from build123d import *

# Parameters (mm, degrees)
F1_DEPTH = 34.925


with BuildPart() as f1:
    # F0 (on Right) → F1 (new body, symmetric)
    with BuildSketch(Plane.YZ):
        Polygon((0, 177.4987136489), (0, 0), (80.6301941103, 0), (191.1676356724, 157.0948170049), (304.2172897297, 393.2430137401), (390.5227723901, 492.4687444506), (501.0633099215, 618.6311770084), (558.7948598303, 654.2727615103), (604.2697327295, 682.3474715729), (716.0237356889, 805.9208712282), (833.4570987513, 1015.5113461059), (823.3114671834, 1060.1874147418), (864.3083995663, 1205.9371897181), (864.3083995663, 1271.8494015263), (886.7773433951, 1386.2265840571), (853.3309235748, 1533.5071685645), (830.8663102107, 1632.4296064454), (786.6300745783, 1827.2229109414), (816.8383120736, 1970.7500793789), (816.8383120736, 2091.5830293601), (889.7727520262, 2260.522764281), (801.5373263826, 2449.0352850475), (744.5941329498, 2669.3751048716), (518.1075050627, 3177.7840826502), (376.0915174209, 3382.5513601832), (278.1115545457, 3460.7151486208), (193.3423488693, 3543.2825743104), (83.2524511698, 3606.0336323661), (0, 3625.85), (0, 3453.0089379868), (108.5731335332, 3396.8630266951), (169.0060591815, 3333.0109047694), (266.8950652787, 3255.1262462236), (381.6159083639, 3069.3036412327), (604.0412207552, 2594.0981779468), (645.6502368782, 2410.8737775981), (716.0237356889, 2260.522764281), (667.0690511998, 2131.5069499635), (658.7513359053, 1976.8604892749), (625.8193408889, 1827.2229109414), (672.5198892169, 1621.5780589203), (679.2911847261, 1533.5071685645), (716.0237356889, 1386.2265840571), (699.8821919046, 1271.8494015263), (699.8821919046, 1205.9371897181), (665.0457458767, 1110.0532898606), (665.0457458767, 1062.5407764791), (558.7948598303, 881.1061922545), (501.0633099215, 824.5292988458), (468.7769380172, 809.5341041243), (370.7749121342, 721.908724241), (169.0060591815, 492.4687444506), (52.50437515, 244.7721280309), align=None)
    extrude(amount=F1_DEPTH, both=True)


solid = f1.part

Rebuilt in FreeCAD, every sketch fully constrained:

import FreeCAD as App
import Part
import Sketcher
from FreeCAD import Vector
Q = App.Units.Quantity

doc = App.newDocument("Part")
body = doc.addObject("PartDesign::Body", "Body")

sketch1 = body.newObject("Sketcher::SketchObject", "Sketch")
sketch1.AttachmentSupport = (doc.getObject("YZ_Plane"), [""])
sketch1.MapMode = "FlatFace"
sketch1.addGeometry([
    Part.LineSegment(Vector(0, 177, 0), Vector(0, 0, 0)),
    Part.LineSegment(Vector(0, 0, 0), Vector(81, 0, 0)),
    Part.LineSegment(Vector(81, 0, 0), Vector(191, 157, 0)),
    Part.LineSegment(Vector(191, 157, 0), Vector(304, 393, 0)),
    Part.LineSegment(Vector(304, 393, 0), Vector(391, 492, 0)),
    Part.LineSegment(Vector(391, 492, 0), Vector(501, 619, 0)),
    Part.LineSegment(Vector(501, 619, 0), Vector(559, 654, 0)),
    Part.LineSegment(Vector(559, 654, 0), Vector(604, 682, 0)),
    Part.LineSegment(Vector(604, 682, 0), Vector(716, 806, 0)),
    Part.LineSegment(Vector(716, 806, 0), Vector(833, 1016, 0)),
    Part.LineSegment(Vector(833, 1016, 0), Vector(823, 1060, 0)),
    Part.LineSegment(Vector(823, 1060, 0), Vector(864, 1206, 0)),
    Part.LineSegment(Vector(864, 1206, 0), Vector(864, 1272, 0)),
    Part.LineSegment(Vector(864, 1272, 0), Vector(887, 1386, 0)),
    Part.LineSegment(Vector(887, 1386, 0), Vector(787, 1827, 0)),
    Part.LineSegment(Vector(787, 1827, 0), Vector(817, 1971, 0)),
    Part.LineSegment(Vector(817, 1971, 0), Vector(817, 2092, 0)),
    Part.LineSegment(Vector(817, 2092, 0), Vector(890, 2261, 0)),
    Part.LineSegment(Vector(890, 2261, 0), Vector(802, 2449, 0)),
    Part.LineSegment(Vector(802, 2449, 0), Vector(745, 2669, 0)),
    Part.LineSegment(Vector(745, 2669, 0), Vector(518, 3178, 0)),
    Part.LineSegment(Vector(518, 3178, 0), Vector(376, 3383, 0)),
    Part.LineSegment(Vector(376, 3383, 0), Vector(278, 3461, 0)),
    Part.LineSegment(Vector(278, 3461, 0), Vector(193, 3543, 0)),
    Part.LineSegment(Vector(193, 3543, 0), Vector(83, 3606, 0)),
    Part.LineSegment(Vector(83, 3606, 0), Vector(0, 3626, 0)),
    Part.LineSegment(Vector(0, 3626, 0), Vector(0, 3453, 0)),
    Part.LineSegment(Vector(0, 3453, 0), Vector(109, 3397, 0)),
    Part.LineSegment(Vector(109, 3397, 0), Vector(169, 3333, 0)),
    Part.LineSegment(Vector(169, 3333, 0), Vector(267, 3255, 0)),
    Part.LineSegment(Vector(267, 3255, 0), Vector(382, 3069, 0)),
    Part.LineSegment(Vector(382, 3069, 0), Vector(604, 2594, 0)),
    Part.LineSegment(Vector(604, 2594, 0), Vector(646, 2411, 0)),
    Part.LineSegment(Vector(646, 2411, 0), Vector(716, 2261, 0)),
    Part.LineSegment(Vector(716, 2261, 0), Vector(667, 2132, 0)),
    Part.LineSegment(Vector(667, 2132, 0), Vector(659, 1977, 0)),
    Part.LineSegment(Vector(659, 1977, 0), Vector(626, 1827, 0)),
    Part.LineSegment(Vector(626, 1827, 0), Vector(673, 1622, 0)),
    Part.LineSegment(Vector(673, 1622, 0), Vector(679, 1534, 0)),
    Part.LineSegment(Vector(679, 1534, 0), Vector(716, 1386, 0)),
    Part.LineSegment(Vector(716, 1386, 0), Vector(700, 1272, 0)),
    Part.LineSegment(Vector(700, 1272, 0), Vector(700, 1206, 0)),
    Part.LineSegment(Vector(700, 1206, 0), Vector(665, 1110, 0)),
    Part.LineSegment(Vector(665, 1110, 0), Vector(665, 1063, 0)),
    Part.LineSegment(Vector(665, 1063, 0), Vector(559, 881, 0)),
    Part.LineSegment(Vector(559, 881, 0), Vector(501, 825, 0)),
    Part.LineSegment(Vector(501, 825, 0), Vector(469, 810, 0)),
    Part.LineSegment(Vector(469, 810, 0), Vector(371, 722, 0)),
    Part.LineSegment(Vector(371, 722, 0), Vector(169, 492, 0)),
    Part.LineSegment(Vector(169, 492, 0), Vector(53, 245, 0)),
    Part.LineSegment(Vector(53, 245, 0), Vector(0, 177, 0)),
], False)
sketch1.addConstraint([
    Sketcher.Constraint("Coincident", 0, 2, 1, 1),
    Sketcher.Constraint("Coincident", 1, 2, 2, 1),
    Sketcher.Constraint("Coincident", 2, 2, 3, 1),
    Sketcher.Constraint("Coincident", 3, 2, 4, 1),
    Sketcher.Constraint("Coincident", 4, 2, 5, 1),
    Sketcher.Constraint("Coincident", 5, 2, 6, 1),
    Sketcher.Constraint("Coincident", 6, 2, 7, 1),
    Sketcher.Constraint("Coincident", 7, 2, 8, 1),
    Sketcher.Constraint("Coincident", 8, 2, 9, 1),
    Sketcher.Constraint("Coincident", 9, 2, 10, 1),
    Sketcher.Constraint("Coincident", 10, 2, 11, 1),
    Sketcher.Constraint("Coincident", 11, 2, 12, 1),
    Sketcher.Constraint("Coincident", 12, 2, 13, 1),
    Sketcher.Constraint("Coincident", 13, 2, 14, 1),
    Sketcher.Constraint("Coincident", 14, 2, 15, 1),
    Sketcher.Constraint("Coincident", 15, 2, 16, 1),
    Sketcher.Constraint("Coincident", 16, 2, 17, 1),
    Sketcher.Constraint("Coincident", 17, 2, 18, 1),
    Sketcher.Constraint("Coincident", 18, 2, 19, 1),
    Sketcher.Constraint("Coincident", 19, 2, 20, 1),
    Sketcher.Constraint("Coincident", 20, 2, 21, 1),
    Sketcher.Constraint("Coincident", 21, 2, 22, 1),
    Sketcher.Constraint("Coincident", 22, 2, 23, 1),
    Sketcher.Constraint("Coincident", 23, 2, 24, 1),
    Sketcher.Constraint("Coincident", 24, 2, 25, 1),
    Sketcher.Constraint("Coincident", 25, 2, 26, 1),
    Sketcher.Constraint("Coincident", 26, 2, 27, 1),
    Sketcher.Constraint("Coincident", 27, 2, 28, 1),
    Sketcher.Constraint("Coincident", 28, 2, 29, 1),
    Sketcher.Constraint("Coincident", 29, 2, 30, 1),
    Sketcher.Constraint("Coincident", 30, 2, 31, 1),
    Sketcher.Constraint("Coincident", 31, 2, 32, 1),
    Sketcher.Constraint("Coincident", 32, 2, 33, 1),
    Sketcher.Constraint("Coincident", 33, 2, 34, 1),
    Sketcher.Constraint("Coincident", 34, 2, 35, 1),
    Sketcher.Constraint("Coincident", 35, 2, 36, 1),
    Sketcher.Constraint("Coincident", 36, 2, 37, 1),
    Sketcher.Constraint("Coincident", 37, 2, 38, 1),
    Sketcher.Constraint("Coincident", 38, 2, 39, 1),
    Sketcher.Constraint("Coincident", 39, 2, 40, 1),
    Sketcher.Constraint("Coincident", 40, 2, 41, 1),
    Sketcher.Constraint("Coincident", 41, 2, 42, 1),
    Sketcher.Constraint("Coincident", 42, 2, 43, 1),
    Sketcher.Constraint("Coincident", 43, 2, 44, 1),
    Sketcher.Constraint("Coincident", 44, 2, 45, 1),
    Sketcher.Constraint("Coincident", 45, 2, 46, 1),
    Sketcher.Constraint("Coincident", 46, 2, 47, 1),
    Sketcher.Constraint("Coincident", 47, 2, 48, 1),
    Sketcher.Constraint("Coincident", 48, 2, 49, 1),
    Sketcher.Constraint("Coincident", 49, 2, 50, 1),
    Sketcher.Constraint("Coincident", 50, 2, 0, 1),
    Sketcher.Constraint("Vertical", 0),
    Sketcher.Constraint("Horizontal", 1),
    Sketcher.Constraint("Vertical", 12),
    Sketcher.Constraint("Vertical", 16),
    Sketcher.Constraint("Vertical", 26),
    Sketcher.Constraint("Vertical", 41),
    Sketcher.Constraint("Vertical", 43),
    Sketcher.Constraint("Coincident", 0, 2, -1, 1),
    Sketcher.Constraint("PointOnObject", 25, 2, -2),
    Sketcher.Constraint("Parallel", 6, 7),
    Sketcher.Constraint("Parallel", 10, 14),
    Sketcher.Constraint("Perpendicular", 7, 30),
    Sketcher.Constraint("Parallel", 18, 31),
    Sketcher.Constraint("Parallel", 14, 32),
    Sketcher.Constraint("Parallel", 31, 33),
    Sketcher.Constraint("Parallel", 32, 37),
    Sketcher.Constraint("Horizontal", 17, 2, 33, 2),
    Sketcher.Constraint("Horizontal", 14, 2, 36, 2),
    Sketcher.Constraint("Horizontal", 13, 2, 39, 2),
    Sketcher.Constraint("Horizontal", 12, 2, 40, 2),
    Sketcher.Constraint("Horizontal", 11, 2, 41, 2),
    Sketcher.Constraint("Horizontal", 4, 2, 48, 2),
    Sketcher.Constraint("Vertical", 8, 2, 33, 2),
    Sketcher.Constraint("Vertical", 33, 2, 39, 2),
    Sketcher.Constraint("Vertical", 6, 2, 44, 2),
    Sketcher.Constraint("Vertical", 5, 2, 45, 2),
    Sketcher.Constraint("Vertical", 28, 2, 48, 2),
    Sketcher.Constraint("DistanceY", -1, 1, 25, 2, Q("142.75 in")),
    Sketcher.Constraint("Distance", 19, Q("8.9597999 in")),
    Sketcher.Constraint("DistanceY", 22, 2, 24, 2, Q("5.7212001 in")),
    Sketcher.Constraint("Distance", 45, Q("80.832399 mm")),
    Sketcher.Constraint("DistanceY", 12, 1, 12, 2, Q("65.912212 mm")),
    Sketcher.Constraint("DistanceY", 16, 1, 16, 2, Q("120.83295 mm")),
    Sketcher.Constraint("DistanceX", -1, 1, 9, 2, Q("833.457099 mm")),
    Sketcher.Constraint("DistanceX", -1, 1, 11, 2, Q("864.3084 mm")),
    Sketcher.Constraint("DistanceY", -1, 1, 12, 2, Q("1271.849402 mm")),
    Sketcher.Constraint("DistanceY", -1, 1, 45, 2, Q("824.529299 mm")),
    Sketcher.Constraint("DistanceY", 7, 2, 8, 2, Q("123.5734 mm")),
    Sketcher.Constraint("DistanceY", 4, 2, 9, 2, Q("523.042602 mm")),
    Sketcher.Constraint("DistanceY", 13, 2, 18, 2, Q("1062.808701 mm")),
    Sketcher.Constraint("DistanceY", 32, 2, 31, 2, Q("183.2244 mm")),
    Sketcher.Constraint("DistanceX", 32, 2, 33, 2, Q("70.373499 mm")),
    Sketcher.Constraint("DistanceX", 34, 2, 17, 2, Q("222.703701 mm")),
    Sketcher.Constraint("DistanceX", 35, 2, 33, 2, Q("57.2724 mm")),
    Sketcher.Constraint("DistanceY", 42, 2, 41, 2, Q("95.8839 mm")),
    Sketcher.Constraint("Distance", 2, Q("192.086719 mm")),
    Sketcher.Constraint("Distance", 8, Q("166.611351 mm")),
    Sketcher.Constraint("Distance", 10, Q("45.813589 mm")),
    Sketcher.Constraint("Distance", 13, Q("116.563259 mm")),
    Sketcher.Constraint("Distance", 17, Q("184.01105 mm")),
    Sketcher.Constraint("Distance", 21, Q("249.195062 mm")),
    Sketcher.Constraint("Distance", 23, Q("118.335109 mm")),
    Sketcher.Constraint("Distance", 25, Q("85.57838 mm")),
    Sketcher.Constraint("Distance", 27, Q("122.231292 mm")),
    Sketcher.Constraint("Distance", 28, Q("87.916051 mm")),
    Sketcher.Constraint("Distance", 30, Q("218.382491 mm")),
    Sketcher.Constraint("Distance", 32, Q("187.889572 mm")),
    Sketcher.Constraint("Distance", 33, Q("166.005592 mm")),
    Sketcher.Constraint("Distance", 36, Q("153.21854 mm")),
    Sketcher.Constraint("Distance", 37, Q("210.880882 mm")),
    Sketcher.Constraint("Distance", 38, Q("88.330811 mm")),
    Sketcher.Constraint("Distance", 39, Q("151.79213 mm")),
    Sketcher.Constraint("Distance", 40, Q("115.510559 mm")),
    Sketcher.Constraint("Distance", 47, Q("131.463319 mm")),
    Sketcher.Constraint("Distance", 49, Q("273.726608 mm")),
    Sketcher.Constraint("DistanceX", 1, 1, 1, 2, Q("80.630194 mm")),
    Sketcher.Constraint("DistanceY", 0, 2, 0, 1, Q("177.498714 mm")),
    Sketcher.Constraint("DistanceY", 26, 2, 26, 1, Q("172.841062 mm")),
    Sketcher.Constraint("DistanceY", 43, 2, 43, 1, Q("47.512513 mm")),
    Sketcher.Constraint("DistanceX", -1, 1, 3, 2, Q("304.21729 mm")),
    Sketcher.Constraint("DistanceX", -1, 1, 5, 2, Q("501.06331 mm")),
    Sketcher.Constraint("DistanceX", -1, 1, 6, 2, Q("558.79486 mm")),
    Sketcher.Constraint("DistanceY", -1, 1, 6, 2, Q("654.272762 mm")),
    Sketcher.Constraint("DistanceY", -1, 1, 7, 2, Q("682.347472 mm")),
    Sketcher.Constraint("DistanceY", -1, 1, 14, 2, Q("1827.222911 mm")),
    Sketcher.Constraint("DistanceY", -1, 1, 15, 2, Q("1970.750079 mm")),
    Sketcher.Constraint("DistanceY", -1, 1, 21, 2, Q("3382.55136 mm")),
    Sketcher.Constraint("DistanceY", -1, 1, 22, 2, Q("3460.715149 mm")),
    Sketcher.Constraint("DistanceX", -1, 1, 23, 2, Q("193.342349 mm")),
    Sketcher.Constraint("DistanceX", -1, 1, 28, 2, Q("169.006059 mm")),
    Sketcher.Constraint("DistanceX", -1, 1, 30, 2, Q("381.615908 mm")),
    Sketcher.Constraint("DistanceY", -1, 1, 30, 2, Q("3069.303641 mm")),
    Sketcher.Constraint("DistanceX", -1, 1, 31, 2, Q("604.041221 mm")),
    Sketcher.Constraint("DistanceX", -1, 1, 34, 2, Q("667.069051 mm")),
    Sketcher.Constraint("DistanceY", -1, 1, 34, 2, Q("2131.50695 mm")),
    Sketcher.Constraint("DistanceY", -1, 1, 35, 2, Q("1976.860489 mm")),
    Sketcher.Constraint("DistanceY", -1, 1, 38, 2, Q("1533.507169 mm")),
    Sketcher.Constraint("DistanceX", -1, 1, 46, 2, Q("468.776938 mm")),
    Sketcher.Constraint("DistanceY", -1, 1, 49, 2, Q("244.772128 mm")),
    Sketcher.Constraint("DistanceX", 1, 2, 2, 2, Q("110.537442 mm")),
    Sketcher.Constraint("DistanceY", 3, 2, 4, 2, Q("99.225731 mm")),
    Sketcher.Constraint("DistanceX", 1, 2, 4, 2, Q("309.892578 mm")),
    Sketcher.Constraint("DistanceY", 5, 2, 9, 2, Q("396.880169 mm")),
    Sketcher.Constraint("DistanceY", 18, 2, 19, 2, Q("220.33982 mm")),
    Sketcher.Constraint("DistanceX", 20, 2, 18, 2, Q("283.429821 mm")),
    Sketcher.Constraint("DistanceY", 17, 2, 20, 2, Q("917.261318 mm")),
    Sketcher.Constraint("DistanceX", 22, 2, 20, 2, Q("239.995951 mm")),
    Sketcher.Constraint("DistanceY", 27, 2, 26, 2, Q("56.145911 mm")),
    Sketcher.Constraint("DistanceX", 42, 2, 10, 2, Q("158.265721 mm")),
    Sketcher.Constraint("DistanceY", 46, 2, 44, 2, Q("71.572088 mm")),
    Sketcher.Constraint("DistanceY", 47, 2, 46, 2, Q("87.62538 mm")),
])
pad1 = body.newObject("PartDesign::Pad", "Pad")
pad1.Profile = sketch1
pad1.Length = Q("2.75 in")
pad1.Midplane = True

doc.recompute()
